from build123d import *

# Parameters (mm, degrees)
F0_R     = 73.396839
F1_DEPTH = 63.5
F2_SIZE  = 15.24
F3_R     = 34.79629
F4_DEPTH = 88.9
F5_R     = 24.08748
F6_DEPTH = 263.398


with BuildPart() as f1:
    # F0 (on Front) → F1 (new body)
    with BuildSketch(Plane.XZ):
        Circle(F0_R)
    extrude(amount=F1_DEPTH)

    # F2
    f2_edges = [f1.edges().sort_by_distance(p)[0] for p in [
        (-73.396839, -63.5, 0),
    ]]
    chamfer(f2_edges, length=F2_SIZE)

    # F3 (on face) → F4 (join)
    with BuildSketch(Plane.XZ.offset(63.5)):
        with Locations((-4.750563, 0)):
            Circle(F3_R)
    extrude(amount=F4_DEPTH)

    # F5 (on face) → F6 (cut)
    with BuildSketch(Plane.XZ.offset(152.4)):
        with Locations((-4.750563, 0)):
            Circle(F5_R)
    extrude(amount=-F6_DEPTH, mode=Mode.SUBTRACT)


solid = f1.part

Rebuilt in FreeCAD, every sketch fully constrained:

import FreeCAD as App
import Part
import Sketcher
Q = App.Units.Quantity


def edges_at(feature, points):
    """Names of the edges that pass closest to the given points."""
    edges = feature.Shape.Edges
    near = lambda p: min(range(len(edges)), key=lambda i: edges[i].distToShape(Part.Vertex(*p))[0])
    return sorted({f"Edge{near(p) + 1}" for p in points})

doc = App.newDocument("Part")
body = doc.addObject("PartDesign::Body", "Body")

# Sketch on XZ plane
sketch1 = doc.addObject("Sketcher::SketchObject", "Sketch")
body.addObject(sketch1)
sketch1.AttachmentSupport = (doc.XZ_Plane, [""])
sketch1.MapMode = "FlatFace"
sketch1.addGeometry(Part.Circle(App.Vector(0, 0, 0), App.Vector(0, 0, 1), 73), False)
sketch1.addConstraint([
    Sketcher.Constraint("Coincident", 0, 3, -1, 1),
    Sketcher.Constraint("Diameter", 0, 146.793678),
])
pad1 = doc.addObject("PartDesign::Pad", "Pad")
body.addObject(pad1)
pad1.Profile = sketch1
pad1.Length = Q("2.5 in")
doc.recompute()

chamfer = doc.addObject("PartDesign::Chamfer", "Chamfer")
body.addObject(chamfer)
chamfer.Base = (pad1, edges_at(pad1, [(-73.397, -63.5, 0)]))
chamfer.Size = Q("0.6 in")

# Sketch on XZ plane
sketch2 = doc.addObject("Sketcher::SketchObject", "Sketch001")
body.addObject(sketch2)
sketch2.AttachmentSupport = (doc.XZ_Plane, [""])
sketch2.MapMode = "FlatFace"
sketch2.AttachmentOffset = App.Placement(App.Vector(0, 0, 2.5 * 25.4), App.Rotation())
sketch2.addGeometry(Part.Circle(App.Vector(-5, 0, 0), App.Vector(0, 0, 1), 35), False)
sketch2.addConstraint([
    Sketcher.Constraint("PointOnObject", 0, 3, -1),
    Sketcher.Constraint("Diameter", 0, 69.59258),
    Sketcher.Constraint("DistanceX", 0, 3, -1, 1, 4.750563),
])
pad2 = doc.addObject("PartDesign::Pad", "Pad001")
body.addObject(pad2)
pad2.Profile = sketch2
pad2.Length = Q("3.5 in")

# Sketch on XZ plane
sketch3 = doc.addObject("Sketcher::SketchObject", "Sketch002")
body.addObject(sketch3)
sketch3.AttachmentSupport = (doc.XZ_Plane, [""])
sketch3.MapMode = "FlatFace"
sketch3.AttachmentOffset = App.Placement(App.Vector(0, 0, 6 * 25.4), App.Rotation())
sketch3.addGeometry(Part.Circle(App.Vector(-5, 0, 0), App.Vector(0, 0, 1), 24), False)
sketch3.addConstraint([
    Sketcher.Constraint("PointOnObject", 0, 3, -1),
    Sketcher.Constraint("Diameter", 0, 48.17496),
    Sketcher.Constraint("DistanceX", 0, 3, -1, 1, 4.750563),
])
pocket1 = doc.addObject("PartDesign::Pocket", "Pocket")
body.addObject(pocket1)
pocket1.Profile = sketch3
pocket1.Length = Q("10.37 in")

doc.recompute()
